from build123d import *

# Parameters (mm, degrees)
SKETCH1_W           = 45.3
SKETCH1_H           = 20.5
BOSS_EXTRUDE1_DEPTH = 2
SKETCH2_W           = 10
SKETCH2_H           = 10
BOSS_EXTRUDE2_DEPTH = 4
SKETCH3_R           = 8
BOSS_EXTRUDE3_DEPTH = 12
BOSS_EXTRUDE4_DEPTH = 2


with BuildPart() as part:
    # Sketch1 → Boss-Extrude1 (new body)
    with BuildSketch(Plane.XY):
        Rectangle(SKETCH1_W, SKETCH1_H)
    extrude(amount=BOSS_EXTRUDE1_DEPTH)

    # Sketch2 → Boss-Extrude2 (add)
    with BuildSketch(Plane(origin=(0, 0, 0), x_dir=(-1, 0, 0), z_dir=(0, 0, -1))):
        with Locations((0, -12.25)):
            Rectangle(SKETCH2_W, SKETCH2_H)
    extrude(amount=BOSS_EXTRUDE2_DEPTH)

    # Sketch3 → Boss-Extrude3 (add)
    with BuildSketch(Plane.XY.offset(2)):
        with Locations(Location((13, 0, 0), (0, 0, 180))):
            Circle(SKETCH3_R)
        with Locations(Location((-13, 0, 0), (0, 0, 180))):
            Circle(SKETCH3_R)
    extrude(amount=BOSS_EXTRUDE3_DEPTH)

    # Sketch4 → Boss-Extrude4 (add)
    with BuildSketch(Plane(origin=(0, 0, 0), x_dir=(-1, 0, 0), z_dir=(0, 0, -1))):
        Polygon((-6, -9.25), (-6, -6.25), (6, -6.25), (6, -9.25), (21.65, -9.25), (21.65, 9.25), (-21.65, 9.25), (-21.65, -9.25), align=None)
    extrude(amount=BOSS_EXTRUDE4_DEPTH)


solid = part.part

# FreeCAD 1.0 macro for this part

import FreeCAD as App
import Part
import Sketcher
Q = App.Units.Quantity

doc = App.newDocument("Part")
body = doc.addObject("PartDesign::Body", "Body")

sketch1 = body.newObject("Sketcher::SketchObject", "Sketch")
sketch1.AttachmentSupport = (doc.getObject("XY_Plane"), [""])
sketch1.MapMode = "FlatFace"
sketch1.addGeometry([
    Part.LineSegment(App.Vector(-22.65, 10.25, 0), App.Vector(-22.65, -10.25, 0)),
    Part.LineSegment(App.Vector(-22.65, -10.25, 0), App.Vector(22.65, -10.25, 0)),
    Part.LineSegment(App.Vector(22.65, -10.25, 0), App.Vector(22.65, 10.25, 0)),
    Part.LineSegment(App.Vector(22.65, 10.25, 0), App.Vector(-22.65, 10.25, 0)),
], False)
sketch1.addConstraint([
    Sketcher.Constraint("Coincident", 0, 2, 1, 1),
    Sketcher.Constraint("Coincident", 1, 2, 2, 1),
    Sketcher.Constraint("Coincident", 2, 2, 3, 1),
    Sketcher.Constraint("Coincident", 3, 2, 0, 1),
    Sketcher.Constraint("Vertical", 0),
    Sketcher.Constraint("Horizontal", 1),
    Sketcher.Constraint("Vertical", 2),
    Sketcher.Constraint("Horizontal", 3),
    Sketcher.Constraint("Symmetric", 0, 2, 2, 2, -1, 1),
    Sketcher.Constraint("DistanceX", 1, 1, 1, 2, Q("45.3 mm")),
    Sketcher.Constraint("DistanceY", 0, 2, 0, 1, Q("20.5 mm")),
])
pad1 = body.newObject("PartDesign::Pad", "Pad")
pad1.Profile = sketch1
pad1.Length = 2

sketch2 = body.newObject("Sketcher::SketchObject", "Sketch001")
sketch2.AttachmentSupport = (doc.getObject("XY_Plane"), [""])
sketch2.MapMode = "FlatFace"
sketch2.addGeometry([
    Part.LineSegment(App.Vector(5, -7.25, 0), App.Vector(5, -17.25, 0)),
    Part.LineSegment(App.Vector(5, -17.25, 0), App.Vector(-5, -17.25, 0)),
    Part.LineSegment(App.Vector(-5, -17.25, 0), App.Vector(-5, -7.25, 0)),
    Part.LineSegment(App.Vector(-5, -7.25, 0), App.Vector(5, -7.25, 0)),
], False)
sketch2.addConstraint([
    Sketcher.Constraint("Coincident", 0, 2, 1, 1),
    Sketcher.Constraint("Coincident", 1, 2, 2, 1),
    Sketcher.Constraint("Coincident", 2, 2, 3, 1),
    Sketcher.Constraint("Coincident", 3, 2, 0, 1),
    Sketcher.Constraint("Vertical", 0),
    Sketcher.Constraint("Horizontal", 1),
    Sketcher.Constraint("Vertical", 2),
    Sketcher.Constraint("Horizontal", 3),
    Sketcher.Constraint("Equal", 3, 0),
    Sketcher.Constraint("DistanceX", 1, 2, 1, 1, Q("10 mm")),
    Sketcher.Constraint("DistanceX", -1, 1, 0, 2, Q("5 mm")),
    Sketcher.Constraint("DistanceY", 0, 2, -1, 1, Q("17.25 mm")),
])
pad2 = body.newObject("PartDesign::Pad", "Pad001")
pad2.Profile = sketch2
pad2.Length = 4
pad2.Reversed = True

sketch3 = body.newObject("Sketcher::SketchObject", "Sketch002")
sketch3.AttachmentSupport = (doc.getObject("XY_Plane"), [""])
sketch3.MapMode = "FlatFace"
sketch3.AttachmentOffset = App.Placement(App.Vector(0, 0, 2), App.Rotation())
sketch3.addGeometry([
    Part.Circle(App.Vector(13, 0, 0), App.Vector(0, 0, 1), 8),
    Part.Circle(App.Vector(-13, 0, 0), App.Vector(0, 0, 1), 8),
], False)
sketch3.addConstraint([
    Sketcher.Constraint("Equal", 0, 1),
    Sketcher.Constraint("Symmetric", 0, 3, 1, 3, -1, 1),
    Sketcher.Constraint("PointOnObject", 0, 3, -1),
    Sketcher.Constraint("Diameter", 0, Q("16 mm")),
    Sketcher.Constraint("DistanceX", -1, 1, 0, 3, Q("13 mm")),
])
pad3 = body.newObject("PartDesign::Pad", "Pad002")
pad3.Profile = sketch3
pad3.Length = 12

sketch4 = body.newObject("Sketcher::SketchObject", "Sketch003")
sketch4.AttachmentSupport = (doc.getObject("XY_Plane"), [""])
sketch4.MapMode = "FlatFace"
sketch4.addGeometry([
    Part.LineSegment(App.Vector(6, -9.25, 0), App.Vector(6, -6.25, 0)),
    Part.LineSegment(App.Vector(6, -6.25, 0), App.Vector(-6, -6.25, 0)),
    Part.LineSegment(App.Vector(-6, -6.25, 0), App.Vector(-6, -9.25, 0)),
    Part.LineSegment(App.Vector(-6, -9.25, 0), App.Vector(-21.65, -9.25, 0)),
    Part.LineSegment(App.Vector(-21.65, -9.25, 0), App.Vector(-21.65, 9.25, 0)),
    Part.LineSegment(App.Vector(-21.65, 9.25, 0), App.Vector(21.65, 9.25, 0)),
    Part.LineSegment(App.Vector(21.65, 9.25, 0), App.Vector(21.65, -9.25, 0)),
    Part.LineSegment(App.Vector(21.65, -9.25, 0), App.Vector(6, -9.25, 0)),
], False)
sketch4.addConstraint([
    Sketcher.Constraint("Coincident", 0, 2, 1, 1),
    Sketcher.Constraint("Coincident", 1, 2, 2, 1),
    Sketcher.Constraint("Coincident", 2, 2, 3, 1),
    Sketcher.Constraint("Coincident", 3, 2, 4, 1),
    Sketcher.Constraint("Coincident", 4, 2, 5, 1),
    Sketcher.Constraint("Coincident", 5, 2, 6, 1),
    Sketcher.Constraint("Coincident", 6, 2, 7, 1),
    Sketcher.Constraint("Coincident", 7, 2, 0, 1),
    Sketcher.Constraint("Vertical", 0),
    Sketcher.Constraint("Horizontal", 1),
    Sketcher.Constraint("Vertical", 2),
    Sketcher.Constraint("Horizontal", 3),
    Sketcher.Constraint("Vertical", 4),
    Sketcher.Constraint("Horizontal", 5),
    Sketcher.Constraint("Vertical", 6),
    Sketcher.Constraint("Horizontal", 7),
    Sketcher.Constraint("Symmetric", 3, 2, 5, 2, -1, 1),
    Sketcher.Constraint("Symmetric", 2, 2, 7, 2, -2),
    Sketcher.Constraint("DistanceX", 1, 2, 1, 1, Q("12 mm")),
    Sketcher.Constraint("DistanceY", 0, 1, 0, 2, Q("3 mm")),
    Sketcher.Constraint("DistanceX", 5, 1, 5, 2, Q("43.3 mm")),
    Sketcher.Constraint("DistanceY", 4, 1, 4, 2, Q("18.5 mm")),
])
pad4 = body.newObject("PartDesign::Pad", "Pad003")
pad4.Profile = sketch4
pad4.Length = 2
pad4.Reversed = True

doc.recompute()
